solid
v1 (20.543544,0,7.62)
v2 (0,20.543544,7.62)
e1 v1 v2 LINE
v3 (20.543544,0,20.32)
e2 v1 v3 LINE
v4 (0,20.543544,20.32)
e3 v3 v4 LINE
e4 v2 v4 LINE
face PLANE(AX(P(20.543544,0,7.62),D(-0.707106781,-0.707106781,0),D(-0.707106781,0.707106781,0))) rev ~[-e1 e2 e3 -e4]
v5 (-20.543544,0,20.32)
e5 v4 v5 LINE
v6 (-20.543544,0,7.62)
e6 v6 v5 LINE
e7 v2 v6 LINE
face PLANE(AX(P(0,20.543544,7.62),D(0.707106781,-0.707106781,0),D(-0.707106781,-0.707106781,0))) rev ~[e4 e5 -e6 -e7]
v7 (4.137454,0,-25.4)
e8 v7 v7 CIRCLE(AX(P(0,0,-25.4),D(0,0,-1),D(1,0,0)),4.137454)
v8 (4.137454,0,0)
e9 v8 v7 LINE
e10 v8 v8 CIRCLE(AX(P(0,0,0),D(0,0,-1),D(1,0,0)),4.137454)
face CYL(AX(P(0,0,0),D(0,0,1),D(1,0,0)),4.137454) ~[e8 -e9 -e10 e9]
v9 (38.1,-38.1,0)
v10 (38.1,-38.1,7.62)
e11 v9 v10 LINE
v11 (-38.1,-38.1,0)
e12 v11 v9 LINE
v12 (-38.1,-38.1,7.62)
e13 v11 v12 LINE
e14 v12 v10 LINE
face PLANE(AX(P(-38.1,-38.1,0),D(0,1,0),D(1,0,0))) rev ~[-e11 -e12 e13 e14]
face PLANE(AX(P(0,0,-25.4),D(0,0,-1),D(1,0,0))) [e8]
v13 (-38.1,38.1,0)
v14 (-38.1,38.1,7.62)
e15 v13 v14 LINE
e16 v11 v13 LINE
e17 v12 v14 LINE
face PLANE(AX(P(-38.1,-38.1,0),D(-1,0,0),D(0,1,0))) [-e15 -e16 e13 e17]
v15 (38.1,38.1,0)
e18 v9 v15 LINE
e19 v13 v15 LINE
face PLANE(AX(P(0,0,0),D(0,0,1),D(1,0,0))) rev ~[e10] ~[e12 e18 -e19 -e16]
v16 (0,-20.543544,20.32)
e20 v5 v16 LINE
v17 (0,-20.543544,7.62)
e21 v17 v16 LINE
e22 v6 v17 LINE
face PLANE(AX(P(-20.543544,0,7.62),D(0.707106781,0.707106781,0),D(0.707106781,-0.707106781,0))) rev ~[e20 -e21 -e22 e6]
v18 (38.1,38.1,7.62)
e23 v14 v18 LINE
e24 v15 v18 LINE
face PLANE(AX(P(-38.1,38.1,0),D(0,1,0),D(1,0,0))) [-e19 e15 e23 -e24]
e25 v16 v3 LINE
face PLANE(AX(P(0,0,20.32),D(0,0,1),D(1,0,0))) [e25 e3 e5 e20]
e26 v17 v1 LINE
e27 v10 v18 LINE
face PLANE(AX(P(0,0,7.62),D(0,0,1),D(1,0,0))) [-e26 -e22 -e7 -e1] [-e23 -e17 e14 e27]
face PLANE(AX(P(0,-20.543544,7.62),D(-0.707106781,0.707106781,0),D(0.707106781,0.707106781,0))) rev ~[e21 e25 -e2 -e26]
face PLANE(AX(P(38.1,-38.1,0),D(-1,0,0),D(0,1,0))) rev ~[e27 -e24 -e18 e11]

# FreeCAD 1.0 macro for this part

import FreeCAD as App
import Part
import Sketcher
from FreeCAD import Vector
Q = App.Units.Quantity

doc = App.newDocument("Part")
body = doc.addObject("PartDesign::Body", "Body")

sketch1 = doc.addObject("Sketcher::SketchObject", "Sketch")
body.addObject(sketch1)
sketch1.AttachmentSupport = (doc.XY_Plane, [""])
sketch1.MapMode = "FlatFace"
sketch1.addGeometry([
    Part.LineSegment(Vector(-38, 38, 0), Vector(-38, -38, 0)),
    Part.LineSegment(Vector(-38, -38, 0), Vector(38, -38, 0)),
    Part.LineSegment(Vector(38, -38, 0), Vector(38, 38, 0)),
    Part.LineSegment(Vector(38, 38, 0), Vector(-38, 38, 0)),
], False)
sketch1.addConstraint([
    Sketcher.Constraint("Coincident", 0, 2, 1, 1),
    Sketcher.Constraint("Coincident", 1, 2, 2, 1),
    Sketcher.Constraint("Coincident", 2, 2, 3, 1),
    Sketcher.Constraint("Coincident", 3, 2, 0, 1),
    Sketcher.Constraint("Vertical", 0),
    Sketcher.Constraint("Horizontal", 1),
    Sketcher.Constraint("Vertical", 2),
    Sketcher.Constraint("Horizontal", 3),
    Sketcher.Constraint("Symmetric", 0, 2, 2, 2, -1, 1),
    Sketcher.Constraint("Equal", 3, 0),
    Sketcher.Constraint("DistanceX", 1, 1, 1, 2, Q("3 in")),
])
pad1 = doc.addObject("PartDesign::Pad", "Pad")
body.addObject(pad1)
pad1.Profile = sketch1
pad1.Length = Q("0.3 in")

sketch2 = doc.addObject("Sketcher::SketchObject", "Sketch001")
body.addObject(sketch2)
sketch2.AttachmentSupport = (doc.XY_Plane, [""])
sketch2.MapMode = "FlatFace"
sketch2.AttachmentOffset = App.Placement(Vector(0, 0, 0.3 * 25.4), App.Rotation())
sketch2.addGeometry([
    Part.LineSegment(Vector(-21, 0, 0), Vector(0, -21, 0)),
    Part.LineSegment(Vector(0, -21, 0), Vector(21, 0, 0)),
    Part.LineSegment(Vector(21, 0, 0), Vector(0, 21, 0)),
    Part.LineSegment(Vector(0, 21, 0), Vector(-21, 0, 0)),
], False)
sketch2.addConstraint([
    Sketcher.Constraint("Coincident", 0, 2, 1, 1),
    Sketcher.Constraint("Coincident", 1, 2, 2, 1),
    Sketcher.Constraint("Coincident", 2, 2, 3, 1),
    Sketcher.Constraint("Coincident", 3, 2, 0, 1),
    Sketcher.Constraint("Symmetric", 0, 2, 2, 2, -1, 1),
    Sketcher.Constraint("Symmetric", 1, 2, 3, 2, -1, 1),
    Sketcher.Constraint("PointOnObject", 0, 2, -2),
    Sketcher.Constraint("PointOnObject", 1, 2, -1),
    Sketcher.Constraint("Perpendicular", 0, 1),
    Sketcher.Constraint("Distance", 0, Q("29.052959 mm")),
])
pad2 = doc.addObject("PartDesign::Pad", "Pad001")
body.addObject(pad2)
pad2.Profile = sketch2
pad2.Length = Q("0.5 in")

sketch3 = doc.addObject("Sketcher::SketchObject", "Sketch002")
body.addObject(sketch3)
sketch3.AttachmentSupport = (doc.XY_Plane, [""])
sketch3.MapMode = "FlatFace"
sketch3.addGeometry(Part.Circle(Vector(0, 0, 0), Vector(0, 0, 1), 4.1), False)
sketch3.addConstraint([
    Sketcher.Constraint("Coincident", 0, 3, -1, 1),
    Sketcher.Constraint("Diameter", 0, Q("8.274908 mm")),
])
pad3 = doc.addObject("PartDesign::Pad", "Pad002")
body.addObject(pad3)
pad3.Profile = sketch3
pad3.Length = Q("1 in")
pad3.Reversed = True

doc.recompute()
